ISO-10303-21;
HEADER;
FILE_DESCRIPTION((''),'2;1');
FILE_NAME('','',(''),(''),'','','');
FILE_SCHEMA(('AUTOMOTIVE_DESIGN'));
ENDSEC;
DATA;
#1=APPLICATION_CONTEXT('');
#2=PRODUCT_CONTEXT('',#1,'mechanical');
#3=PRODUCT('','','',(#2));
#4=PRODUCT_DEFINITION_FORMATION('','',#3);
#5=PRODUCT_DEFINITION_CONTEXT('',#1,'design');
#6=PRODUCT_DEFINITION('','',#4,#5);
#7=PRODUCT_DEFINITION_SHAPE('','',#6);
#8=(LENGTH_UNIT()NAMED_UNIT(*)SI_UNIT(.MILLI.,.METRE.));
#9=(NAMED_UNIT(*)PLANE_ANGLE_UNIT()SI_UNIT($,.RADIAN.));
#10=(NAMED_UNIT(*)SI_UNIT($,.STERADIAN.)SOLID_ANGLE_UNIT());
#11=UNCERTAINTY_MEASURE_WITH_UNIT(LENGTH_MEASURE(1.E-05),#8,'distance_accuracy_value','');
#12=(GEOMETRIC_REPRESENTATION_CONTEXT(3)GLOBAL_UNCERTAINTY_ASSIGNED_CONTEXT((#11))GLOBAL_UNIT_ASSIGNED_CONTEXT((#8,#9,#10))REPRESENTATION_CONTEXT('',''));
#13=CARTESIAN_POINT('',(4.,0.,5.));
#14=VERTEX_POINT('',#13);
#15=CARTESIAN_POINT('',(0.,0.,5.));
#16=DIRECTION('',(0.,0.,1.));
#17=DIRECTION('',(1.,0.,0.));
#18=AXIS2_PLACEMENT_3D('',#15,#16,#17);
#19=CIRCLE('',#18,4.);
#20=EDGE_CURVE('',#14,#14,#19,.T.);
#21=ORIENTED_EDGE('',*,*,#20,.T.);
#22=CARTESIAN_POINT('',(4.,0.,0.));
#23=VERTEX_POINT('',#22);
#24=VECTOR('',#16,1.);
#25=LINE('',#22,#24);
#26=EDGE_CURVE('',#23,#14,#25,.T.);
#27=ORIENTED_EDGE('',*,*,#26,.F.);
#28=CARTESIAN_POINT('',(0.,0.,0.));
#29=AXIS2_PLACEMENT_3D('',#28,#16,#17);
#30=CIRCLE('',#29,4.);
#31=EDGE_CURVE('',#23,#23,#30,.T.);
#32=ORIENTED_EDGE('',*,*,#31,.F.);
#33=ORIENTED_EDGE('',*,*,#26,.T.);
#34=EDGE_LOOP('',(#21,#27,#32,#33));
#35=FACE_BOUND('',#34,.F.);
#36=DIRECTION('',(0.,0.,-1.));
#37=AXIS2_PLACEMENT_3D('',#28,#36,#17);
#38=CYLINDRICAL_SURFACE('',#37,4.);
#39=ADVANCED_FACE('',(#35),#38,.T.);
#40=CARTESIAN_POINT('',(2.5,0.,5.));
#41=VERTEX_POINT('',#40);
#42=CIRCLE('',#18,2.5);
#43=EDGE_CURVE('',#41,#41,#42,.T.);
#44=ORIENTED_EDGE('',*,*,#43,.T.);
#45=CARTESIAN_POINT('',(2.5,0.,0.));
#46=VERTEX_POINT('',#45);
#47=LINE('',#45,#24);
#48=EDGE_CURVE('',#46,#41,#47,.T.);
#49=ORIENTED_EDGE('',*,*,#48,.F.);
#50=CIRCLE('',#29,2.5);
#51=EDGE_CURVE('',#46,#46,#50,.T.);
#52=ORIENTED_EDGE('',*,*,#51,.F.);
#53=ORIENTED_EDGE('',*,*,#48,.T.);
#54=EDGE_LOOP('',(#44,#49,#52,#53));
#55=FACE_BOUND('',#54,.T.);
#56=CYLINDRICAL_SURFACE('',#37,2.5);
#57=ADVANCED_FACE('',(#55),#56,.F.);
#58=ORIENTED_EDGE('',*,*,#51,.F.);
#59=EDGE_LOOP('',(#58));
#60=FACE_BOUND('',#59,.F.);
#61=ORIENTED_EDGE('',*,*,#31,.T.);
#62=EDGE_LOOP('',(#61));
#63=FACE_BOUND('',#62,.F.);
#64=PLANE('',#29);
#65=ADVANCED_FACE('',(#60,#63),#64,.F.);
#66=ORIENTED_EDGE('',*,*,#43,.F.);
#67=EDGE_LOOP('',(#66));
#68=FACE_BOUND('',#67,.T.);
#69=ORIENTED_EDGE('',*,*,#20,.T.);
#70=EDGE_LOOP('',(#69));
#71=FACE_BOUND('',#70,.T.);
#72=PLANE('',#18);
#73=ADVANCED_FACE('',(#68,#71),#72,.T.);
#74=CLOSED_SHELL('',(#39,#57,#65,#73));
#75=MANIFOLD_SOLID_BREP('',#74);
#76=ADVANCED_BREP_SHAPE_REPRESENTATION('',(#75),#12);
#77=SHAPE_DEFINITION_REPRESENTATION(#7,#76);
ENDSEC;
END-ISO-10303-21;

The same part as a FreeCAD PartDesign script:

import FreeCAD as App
import Part
import Sketcher
Q = App.Units.Quantity

doc = App.newDocument("Part")
body = doc.addObject("PartDesign::Body", "Body")

# Sketch on XY plane
sketch1 = body.newObject("Sketcher::SketchObject", "Sketch")
sketch1.AttachmentSupport = (doc.getObject("XY_Plane"), [""])
sketch1.MapMode = "FlatFace"
sketch1.addGeometry(Part.Circle(App.Vector(0, 0, 0), App.Vector(0, 0, 1), 2.5), False)
sketch1.addConstraint(Sketcher.Constraint("Coincident", 0, 3, -1, 1))
sketch1.addConstraint(Sketcher.Constraint("Diameter", 0, Q("5 mm")))
pad1 = body.newObject("PartDesign::Pad", "Pad")
pad1.Profile = sketch1
pad1.Length = 5
body2 = doc.addObject("PartDesign::Body", "Body001")

# Sketch on XY plane
sketch2 = body2.newObject("Sketcher::SketchObject", "Sketch001")
sketch2.AttachmentSupport = (doc.getObject("XY_Plane001"), [""])
sketch2.MapMode = "FlatFace"
sketch2.addGeometry(Part.Circle(App.Vector(0, 0, 0), App.Vector(0, 0, 1), 4), False)
sketch2.addConstraint(Sketcher.Constraint("Coincident", 0, 3, -1, 1))
sketch2.addConstraint(Sketcher.Constraint("Diameter", 0, Q("8 mm")))
pad2 = body2.newObject("PartDesign::Pad", "Pad001")
pad2.Profile = sketch2
pad2.Length = 5
doc.recompute()

boolean = body2.newObject("PartDesign::Boolean", "Boolean")
boolean.Type = "Cut"
boolean.addObjects([body])

doc.recompute()
